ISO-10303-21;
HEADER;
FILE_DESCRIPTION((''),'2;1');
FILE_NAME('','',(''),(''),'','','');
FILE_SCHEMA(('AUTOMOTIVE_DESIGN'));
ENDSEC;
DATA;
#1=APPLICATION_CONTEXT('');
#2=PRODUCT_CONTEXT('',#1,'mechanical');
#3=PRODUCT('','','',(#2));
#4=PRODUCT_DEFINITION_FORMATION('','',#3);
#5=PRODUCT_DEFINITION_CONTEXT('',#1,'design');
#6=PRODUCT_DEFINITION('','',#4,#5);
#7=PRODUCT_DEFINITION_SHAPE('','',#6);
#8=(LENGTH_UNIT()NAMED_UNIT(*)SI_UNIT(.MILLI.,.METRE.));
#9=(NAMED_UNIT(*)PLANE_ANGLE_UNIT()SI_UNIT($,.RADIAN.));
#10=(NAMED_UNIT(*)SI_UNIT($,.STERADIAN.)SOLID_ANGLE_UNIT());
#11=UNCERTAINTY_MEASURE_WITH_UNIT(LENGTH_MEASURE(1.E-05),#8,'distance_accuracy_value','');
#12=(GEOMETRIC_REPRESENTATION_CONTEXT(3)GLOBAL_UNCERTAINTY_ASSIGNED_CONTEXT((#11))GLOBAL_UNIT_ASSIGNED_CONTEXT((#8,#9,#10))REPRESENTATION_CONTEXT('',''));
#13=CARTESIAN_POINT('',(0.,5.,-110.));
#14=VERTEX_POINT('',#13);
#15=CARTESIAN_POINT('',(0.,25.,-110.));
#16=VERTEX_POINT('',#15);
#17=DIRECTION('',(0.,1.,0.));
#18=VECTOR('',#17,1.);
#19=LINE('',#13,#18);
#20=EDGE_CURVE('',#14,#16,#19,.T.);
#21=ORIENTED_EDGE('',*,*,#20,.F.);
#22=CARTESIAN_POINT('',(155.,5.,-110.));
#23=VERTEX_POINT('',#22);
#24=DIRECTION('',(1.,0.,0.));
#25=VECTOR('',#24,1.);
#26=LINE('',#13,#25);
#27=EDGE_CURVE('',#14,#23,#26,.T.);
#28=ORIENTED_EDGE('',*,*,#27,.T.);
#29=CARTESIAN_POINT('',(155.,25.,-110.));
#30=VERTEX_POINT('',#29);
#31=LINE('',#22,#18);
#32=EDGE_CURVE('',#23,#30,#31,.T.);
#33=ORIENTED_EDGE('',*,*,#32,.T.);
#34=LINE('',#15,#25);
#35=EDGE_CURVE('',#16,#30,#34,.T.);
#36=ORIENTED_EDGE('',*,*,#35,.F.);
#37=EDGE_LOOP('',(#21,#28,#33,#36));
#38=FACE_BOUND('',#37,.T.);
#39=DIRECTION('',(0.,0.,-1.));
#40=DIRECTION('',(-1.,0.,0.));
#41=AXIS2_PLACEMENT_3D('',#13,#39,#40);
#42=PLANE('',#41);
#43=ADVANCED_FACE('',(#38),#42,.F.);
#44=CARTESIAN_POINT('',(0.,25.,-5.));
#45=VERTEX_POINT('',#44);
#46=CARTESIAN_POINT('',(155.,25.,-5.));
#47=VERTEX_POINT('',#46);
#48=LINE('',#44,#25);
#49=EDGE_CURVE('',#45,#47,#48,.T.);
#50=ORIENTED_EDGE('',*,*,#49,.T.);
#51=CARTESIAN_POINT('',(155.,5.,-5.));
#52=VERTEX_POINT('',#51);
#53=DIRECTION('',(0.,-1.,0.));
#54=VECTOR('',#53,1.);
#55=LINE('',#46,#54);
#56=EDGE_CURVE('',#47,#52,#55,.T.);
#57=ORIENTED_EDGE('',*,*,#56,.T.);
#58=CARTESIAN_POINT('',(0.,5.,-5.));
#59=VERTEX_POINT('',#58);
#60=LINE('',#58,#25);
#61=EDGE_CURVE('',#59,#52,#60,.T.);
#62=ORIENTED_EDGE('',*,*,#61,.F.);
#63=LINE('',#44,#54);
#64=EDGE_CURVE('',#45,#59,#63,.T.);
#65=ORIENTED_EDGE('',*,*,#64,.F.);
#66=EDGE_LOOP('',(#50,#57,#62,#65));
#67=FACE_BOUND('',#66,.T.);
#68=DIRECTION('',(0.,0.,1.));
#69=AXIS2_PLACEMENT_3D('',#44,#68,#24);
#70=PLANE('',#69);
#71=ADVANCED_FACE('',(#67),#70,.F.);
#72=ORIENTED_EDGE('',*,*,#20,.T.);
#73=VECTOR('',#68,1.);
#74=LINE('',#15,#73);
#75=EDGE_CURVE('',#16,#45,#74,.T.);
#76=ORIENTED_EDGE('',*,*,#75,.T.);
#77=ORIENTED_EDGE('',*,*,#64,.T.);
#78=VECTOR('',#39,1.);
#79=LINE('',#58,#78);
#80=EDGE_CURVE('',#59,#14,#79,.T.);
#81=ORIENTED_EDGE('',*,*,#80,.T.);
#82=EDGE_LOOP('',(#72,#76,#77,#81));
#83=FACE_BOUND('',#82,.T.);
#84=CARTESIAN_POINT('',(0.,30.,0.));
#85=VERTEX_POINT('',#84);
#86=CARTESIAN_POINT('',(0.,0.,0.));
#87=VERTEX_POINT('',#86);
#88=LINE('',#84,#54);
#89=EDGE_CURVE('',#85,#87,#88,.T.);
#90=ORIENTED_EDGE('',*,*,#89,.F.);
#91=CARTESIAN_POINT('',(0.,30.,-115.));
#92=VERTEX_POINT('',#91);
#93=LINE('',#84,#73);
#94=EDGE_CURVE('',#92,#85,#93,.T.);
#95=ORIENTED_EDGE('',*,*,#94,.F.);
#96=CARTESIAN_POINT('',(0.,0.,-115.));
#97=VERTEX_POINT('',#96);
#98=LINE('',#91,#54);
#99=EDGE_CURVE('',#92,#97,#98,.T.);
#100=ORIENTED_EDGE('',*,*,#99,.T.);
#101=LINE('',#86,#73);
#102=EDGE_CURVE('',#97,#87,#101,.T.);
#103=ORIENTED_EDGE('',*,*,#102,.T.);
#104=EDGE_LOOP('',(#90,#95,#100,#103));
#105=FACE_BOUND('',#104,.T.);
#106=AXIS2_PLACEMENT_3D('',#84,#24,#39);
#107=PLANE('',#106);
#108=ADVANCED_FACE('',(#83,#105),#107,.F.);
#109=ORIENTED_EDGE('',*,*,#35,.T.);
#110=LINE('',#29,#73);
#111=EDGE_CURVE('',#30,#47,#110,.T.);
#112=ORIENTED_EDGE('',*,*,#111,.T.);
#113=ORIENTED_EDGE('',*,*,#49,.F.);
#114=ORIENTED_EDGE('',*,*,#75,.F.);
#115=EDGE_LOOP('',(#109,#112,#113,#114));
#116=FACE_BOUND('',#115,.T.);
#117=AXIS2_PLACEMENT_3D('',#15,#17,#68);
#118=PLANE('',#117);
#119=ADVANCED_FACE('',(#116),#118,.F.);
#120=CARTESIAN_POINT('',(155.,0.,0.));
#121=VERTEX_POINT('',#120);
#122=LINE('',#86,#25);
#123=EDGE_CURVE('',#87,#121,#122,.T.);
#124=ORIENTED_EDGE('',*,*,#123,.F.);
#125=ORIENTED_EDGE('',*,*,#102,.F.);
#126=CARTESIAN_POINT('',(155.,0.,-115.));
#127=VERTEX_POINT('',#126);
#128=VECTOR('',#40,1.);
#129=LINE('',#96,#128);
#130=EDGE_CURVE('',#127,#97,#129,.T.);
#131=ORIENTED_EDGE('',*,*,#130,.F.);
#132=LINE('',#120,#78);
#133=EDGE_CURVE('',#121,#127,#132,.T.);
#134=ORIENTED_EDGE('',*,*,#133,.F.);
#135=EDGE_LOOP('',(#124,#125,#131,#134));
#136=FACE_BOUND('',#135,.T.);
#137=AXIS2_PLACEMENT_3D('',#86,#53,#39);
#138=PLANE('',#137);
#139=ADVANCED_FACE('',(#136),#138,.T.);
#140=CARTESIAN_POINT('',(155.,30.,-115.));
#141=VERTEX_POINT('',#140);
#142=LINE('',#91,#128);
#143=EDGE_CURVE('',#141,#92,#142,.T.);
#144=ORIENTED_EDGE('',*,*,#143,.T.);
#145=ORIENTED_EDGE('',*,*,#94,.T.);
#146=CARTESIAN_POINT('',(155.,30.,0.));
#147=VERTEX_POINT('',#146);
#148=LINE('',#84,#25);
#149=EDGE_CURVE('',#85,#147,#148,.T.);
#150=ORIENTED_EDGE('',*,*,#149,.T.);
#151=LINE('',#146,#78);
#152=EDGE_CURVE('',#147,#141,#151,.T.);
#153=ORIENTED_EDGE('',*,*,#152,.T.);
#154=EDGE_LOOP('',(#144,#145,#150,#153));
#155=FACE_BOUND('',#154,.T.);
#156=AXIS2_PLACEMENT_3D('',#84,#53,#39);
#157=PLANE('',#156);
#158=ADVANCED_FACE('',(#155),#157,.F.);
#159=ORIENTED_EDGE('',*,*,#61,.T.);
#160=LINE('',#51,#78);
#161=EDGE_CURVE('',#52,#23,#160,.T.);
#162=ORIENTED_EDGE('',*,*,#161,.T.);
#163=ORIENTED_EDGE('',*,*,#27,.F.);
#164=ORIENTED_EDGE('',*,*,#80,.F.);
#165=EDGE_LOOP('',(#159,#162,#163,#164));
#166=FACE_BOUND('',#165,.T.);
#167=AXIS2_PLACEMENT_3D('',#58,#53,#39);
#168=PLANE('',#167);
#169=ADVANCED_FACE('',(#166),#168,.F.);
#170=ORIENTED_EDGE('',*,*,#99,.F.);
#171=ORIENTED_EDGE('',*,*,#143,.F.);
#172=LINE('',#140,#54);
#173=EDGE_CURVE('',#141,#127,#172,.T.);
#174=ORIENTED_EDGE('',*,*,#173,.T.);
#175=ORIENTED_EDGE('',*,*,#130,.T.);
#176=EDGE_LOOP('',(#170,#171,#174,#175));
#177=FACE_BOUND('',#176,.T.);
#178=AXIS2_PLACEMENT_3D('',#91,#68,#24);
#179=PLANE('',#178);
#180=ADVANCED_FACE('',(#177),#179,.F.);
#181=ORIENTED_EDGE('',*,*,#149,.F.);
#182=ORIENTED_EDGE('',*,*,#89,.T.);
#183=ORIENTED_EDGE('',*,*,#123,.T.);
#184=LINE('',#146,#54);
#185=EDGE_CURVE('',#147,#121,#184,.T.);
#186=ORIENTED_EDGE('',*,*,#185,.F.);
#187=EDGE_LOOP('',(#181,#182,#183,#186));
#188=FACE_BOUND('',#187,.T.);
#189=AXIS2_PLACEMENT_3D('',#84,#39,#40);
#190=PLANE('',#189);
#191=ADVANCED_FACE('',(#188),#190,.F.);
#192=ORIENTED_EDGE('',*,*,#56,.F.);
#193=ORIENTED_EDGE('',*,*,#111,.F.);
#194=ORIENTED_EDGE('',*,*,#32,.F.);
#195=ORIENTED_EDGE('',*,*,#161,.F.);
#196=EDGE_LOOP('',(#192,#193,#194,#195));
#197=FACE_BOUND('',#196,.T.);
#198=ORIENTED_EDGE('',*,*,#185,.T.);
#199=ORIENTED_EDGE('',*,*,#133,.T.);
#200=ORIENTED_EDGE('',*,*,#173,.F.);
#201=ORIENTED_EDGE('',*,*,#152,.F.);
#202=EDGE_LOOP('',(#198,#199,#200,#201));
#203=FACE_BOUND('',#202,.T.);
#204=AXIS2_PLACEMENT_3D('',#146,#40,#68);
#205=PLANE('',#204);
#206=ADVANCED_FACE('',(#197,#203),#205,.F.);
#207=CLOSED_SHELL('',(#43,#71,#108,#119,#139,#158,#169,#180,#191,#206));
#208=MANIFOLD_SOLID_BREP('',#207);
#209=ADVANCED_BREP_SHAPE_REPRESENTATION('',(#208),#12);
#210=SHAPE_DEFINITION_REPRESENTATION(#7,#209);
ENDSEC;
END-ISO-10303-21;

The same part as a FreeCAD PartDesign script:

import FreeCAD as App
import Part
import Sketcher


def add_polygon(sketch, points):
    """Adds a closed chain of lines whose ends are joined by coincident constraints."""
    first, n = sketch.GeometryCount, len(points)
    for a, b in zip(points, points[1:] + points[:1]):
        sketch.addGeometry(Part.LineSegment(App.Vector(*a, 0), App.Vector(*b, 0)), False)
    for i in range(n):
        sketch.addConstraint(Sketcher.Constraint("Coincident", first + i, 2, first + (i + 1) % n, 1))

doc = App.newDocument("Part")
body = doc.addObject("PartDesign::Body", "Body")

# Sketch on XZ plane
sketch1 = body.newObject("Sketcher::SketchObject", "Sketch")
sketch1.AttachmentSupport = (doc.getObject("XZ_Plane"), [""])
sketch1.MapMode = "FlatFace"
add_polygon(sketch1, [(0, -115), (0, 0), (155, 0), (155, -115)])  # lines 0-3
sketch1.addConstraint(Sketcher.Constraint("Vertical", 0))
sketch1.addConstraint(Sketcher.Constraint("Horizontal", 1))
sketch1.addConstraint(Sketcher.Constraint("Vertical", 2))
sketch1.addConstraint(Sketcher.Constraint("Horizontal", 3))
sketch1.addConstraint(Sketcher.Constraint("Coincident", 0, 2, -1, 1))
sketch1.addConstraint(Sketcher.Constraint("DistanceX", 1, 1, 1, 2, 155.0))
sketch1.addConstraint(Sketcher.Constraint("DistanceY", 0, 1, 0, 2, 115.0))
pad1 = body.newObject("PartDesign::Pad", "Pad")
pad1.Profile = sketch1
pad1.Length = 30
pad1.Reversed = True

# Sketch on YZ plane
sketch2 = body.newObject("Sketcher::SketchObject", "Sketch001")
sketch2.AttachmentSupport = (doc.getObject("YZ_Plane"), [""])
sketch2.MapMode = "FlatFace"
sketch2.AttachmentOffset = App.Placement(App.Vector(0, 0, 155), App.Rotation())
add_polygon(sketch2, [(25, -5), (5, -5), (5, -110), (25, -110)])  # lines 0-3
sketch2.addConstraint(Sketcher.Constraint("Horizontal", 0))
sketch2.addConstraint(Sketcher.Constraint("Vertical", 1))
sketch2.addConstraint(Sketcher.Constraint("Horizontal", 2))
sketch2.addConstraint(Sketcher.Constraint("Vertical", 3))
sketch2.addConstraint(Sketcher.Constraint("DistanceX", 0, 2, 0, 1, 20.0))
sketch2.addConstraint(Sketcher.Constraint("DistanceY", 1, 2, 1, 1, 105.0))
sketch2.addConstraint(Sketcher.Constraint("DistanceX", -1, 1, 0, 2, 5.0))
sketch2.addConstraint(Sketcher.Constraint("DistanceY", 0, 2, -1, 1, 5.0))
pocket1 = body.newObject("PartDesign::Pocket", "Pocket")
pocket1.Profile = sketch2
pocket1.Type = "ThroughAll"

doc.recompute()
